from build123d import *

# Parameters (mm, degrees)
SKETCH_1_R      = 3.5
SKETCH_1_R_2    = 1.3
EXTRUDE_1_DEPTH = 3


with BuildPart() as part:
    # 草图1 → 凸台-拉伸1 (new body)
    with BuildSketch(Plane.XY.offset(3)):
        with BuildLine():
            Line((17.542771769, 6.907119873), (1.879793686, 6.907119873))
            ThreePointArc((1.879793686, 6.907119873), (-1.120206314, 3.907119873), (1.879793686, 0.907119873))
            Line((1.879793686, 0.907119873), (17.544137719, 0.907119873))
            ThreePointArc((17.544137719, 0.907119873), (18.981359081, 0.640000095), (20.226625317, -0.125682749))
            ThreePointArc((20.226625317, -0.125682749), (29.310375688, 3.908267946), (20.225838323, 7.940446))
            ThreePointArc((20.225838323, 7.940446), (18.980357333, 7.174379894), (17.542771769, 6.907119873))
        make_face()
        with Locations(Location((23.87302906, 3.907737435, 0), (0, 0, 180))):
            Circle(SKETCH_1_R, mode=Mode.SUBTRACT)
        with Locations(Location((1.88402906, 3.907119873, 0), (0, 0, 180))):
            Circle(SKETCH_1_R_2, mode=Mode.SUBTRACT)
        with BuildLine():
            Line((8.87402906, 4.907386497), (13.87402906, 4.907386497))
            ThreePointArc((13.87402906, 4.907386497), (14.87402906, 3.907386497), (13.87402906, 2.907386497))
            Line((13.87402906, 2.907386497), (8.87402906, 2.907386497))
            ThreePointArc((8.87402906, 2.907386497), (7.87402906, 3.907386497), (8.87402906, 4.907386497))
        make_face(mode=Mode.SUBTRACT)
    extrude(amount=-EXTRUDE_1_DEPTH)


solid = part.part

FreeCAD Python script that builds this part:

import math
import FreeCAD as App
import Part
import Sketcher
from FreeCAD import Vector

doc = App.newDocument("Part")
body = doc.addObject("PartDesign::Body", "Body")

# Sketch on XY plane
sketch1 = body.newObject("Sketcher::SketchObject", "Sketch")
sketch1.AttachmentSupport = (doc.getObject("XY_Plane"), [""])
sketch1.MapMode = "FlatFace"
sketch1.AttachmentOffset = App.Placement(Vector(0, 0, 3), App.Rotation())
sketch1.addGeometry([
    Part.LineSegment(Vector(17.5, 6.9, 0), Vector(1.9, 6.9, 0)),  # 0
    Part.ArcOfCircle(Part.Circle(Vector(1.9, 3.9, 0), Vector(0, 0, 1), 3), math.radians(90), math.radians(270)),  # 1
    Part.LineSegment(Vector(1.9, 0.9, 0), Vector(17.5, 0.9, 0)),  # 2
    Part.ArcOfCircle(Part.Circle(Vector(17.5, -3.1, 0), Vector(0, 0, 1), 4), math.radians(48), math.radians(90)),  # 3
    Part.ArcOfCircle(Part.Circle(Vector(23.9, 3.9, 0), Vector(0, 0, 1), 5.4), math.radians(-132), math.radians(132)),  # 4
    Part.ArcOfCircle(Part.Circle(Vector(17.5, 10.9, 0), Vector(0, 0, 1), 4), math.radians(-90), math.radians(-48)),  # 5
    Part.Circle(Vector(1.9, 3.9, 0), Vector(0, 0, 1), 1.3),  # 6
    Part.ArcOfCircle(Part.Circle(Vector(8.9, 3.9, 0), Vector(0, 0, 1), 1), math.radians(90), math.radians(270)),  # 7
    Part.LineSegment(Vector(8.9, 4.9, 0), Vector(13.9, 4.9, 0)),  # 8
    Part.ArcOfCircle(Part.Circle(Vector(13.9, 3.9, 0), Vector(0, 0, 1), 1), math.radians(-90), math.radians(90)),  # 9
    Part.LineSegment(Vector(13.9, 2.9, 0), Vector(8.9, 2.9, 0)),  # 10
    Part.Circle(Vector(23.9, 3.9, 0), Vector(0, 0, 1), 3.5),  # 11
], False)
sketch1.addConstraint([
    Sketcher.Constraint("Tangent", 0, 2, 1, 1),
    Sketcher.Constraint("Tangent", 1, 2, 2, 1),
    Sketcher.Constraint("Tangent", 2, 2, 3, 2),
    Sketcher.Constraint("Tangent", 3, 1, 4, 1),
    Sketcher.Constraint("Tangent", 4, 2, 5, 2),
    Sketcher.Constraint("Tangent", 5, 1, 0, 1),
    Sketcher.Constraint("Tangent", 7, 1, 8, 1),
    Sketcher.Constraint("Tangent", 8, 2, 9, 2),
    Sketcher.Constraint("Tangent", 9, 1, 10, 1),
    Sketcher.Constraint("Tangent", 10, 2, 7, 2),
    Sketcher.Constraint("Horizontal", 0),
    Sketcher.Constraint("Horizontal", 2),
    Sketcher.Constraint("Horizontal", 8),
    Sketcher.Constraint("Horizontal", 10),
    Sketcher.Constraint("Coincident", 11, 3, 4, 3),
    Sketcher.Constraint("Equal", 3, 5),
    Sketcher.Constraint("Horizontal", 1, 3, 6, 3),
    Sketcher.Constraint("Diameter", 11, 7.0),
    Sketcher.Constraint("Radius", 1, 3.0),
    Sketcher.Constraint("Radius", 3, 4.0),
    Sketcher.Constraint("Radius", 7, 1.0),
    Sketcher.Constraint("Diameter", 6, 2.6),
    Sketcher.Constraint("DistanceX", 8, 1, 8, 2, 5.0),
    Sketcher.Constraint("DistanceX", 6, 3, 7, 3, 6.99),
    Sketcher.Constraint("Radius", 4, 5.437347),
    Sketcher.Constraint("DistanceX", 6, 3, 4, 3, 21.989),
    Sketcher.Constraint("DistanceX", 0, 2, 0, 1, 15.662978),
    Sketcher.Constraint("DistanceX", 2, 2, 4, 2, 2.681701),
    Sketcher.Constraint("DistanceY", -1, 1, 1, 3, 3.90712),
    Sketcher.Constraint("DistanceX", -1, 1, 4, 3, 23.873029),
    Sketcher.Constraint("DistanceY", 7, 3, 4, 3, 0.000351),
])
pad1 = body.newObject("PartDesign::Pad", "Pad")
pad1.Profile = sketch1
pad1.Length = 3
pad1.Reversed = True

doc.recompute()
